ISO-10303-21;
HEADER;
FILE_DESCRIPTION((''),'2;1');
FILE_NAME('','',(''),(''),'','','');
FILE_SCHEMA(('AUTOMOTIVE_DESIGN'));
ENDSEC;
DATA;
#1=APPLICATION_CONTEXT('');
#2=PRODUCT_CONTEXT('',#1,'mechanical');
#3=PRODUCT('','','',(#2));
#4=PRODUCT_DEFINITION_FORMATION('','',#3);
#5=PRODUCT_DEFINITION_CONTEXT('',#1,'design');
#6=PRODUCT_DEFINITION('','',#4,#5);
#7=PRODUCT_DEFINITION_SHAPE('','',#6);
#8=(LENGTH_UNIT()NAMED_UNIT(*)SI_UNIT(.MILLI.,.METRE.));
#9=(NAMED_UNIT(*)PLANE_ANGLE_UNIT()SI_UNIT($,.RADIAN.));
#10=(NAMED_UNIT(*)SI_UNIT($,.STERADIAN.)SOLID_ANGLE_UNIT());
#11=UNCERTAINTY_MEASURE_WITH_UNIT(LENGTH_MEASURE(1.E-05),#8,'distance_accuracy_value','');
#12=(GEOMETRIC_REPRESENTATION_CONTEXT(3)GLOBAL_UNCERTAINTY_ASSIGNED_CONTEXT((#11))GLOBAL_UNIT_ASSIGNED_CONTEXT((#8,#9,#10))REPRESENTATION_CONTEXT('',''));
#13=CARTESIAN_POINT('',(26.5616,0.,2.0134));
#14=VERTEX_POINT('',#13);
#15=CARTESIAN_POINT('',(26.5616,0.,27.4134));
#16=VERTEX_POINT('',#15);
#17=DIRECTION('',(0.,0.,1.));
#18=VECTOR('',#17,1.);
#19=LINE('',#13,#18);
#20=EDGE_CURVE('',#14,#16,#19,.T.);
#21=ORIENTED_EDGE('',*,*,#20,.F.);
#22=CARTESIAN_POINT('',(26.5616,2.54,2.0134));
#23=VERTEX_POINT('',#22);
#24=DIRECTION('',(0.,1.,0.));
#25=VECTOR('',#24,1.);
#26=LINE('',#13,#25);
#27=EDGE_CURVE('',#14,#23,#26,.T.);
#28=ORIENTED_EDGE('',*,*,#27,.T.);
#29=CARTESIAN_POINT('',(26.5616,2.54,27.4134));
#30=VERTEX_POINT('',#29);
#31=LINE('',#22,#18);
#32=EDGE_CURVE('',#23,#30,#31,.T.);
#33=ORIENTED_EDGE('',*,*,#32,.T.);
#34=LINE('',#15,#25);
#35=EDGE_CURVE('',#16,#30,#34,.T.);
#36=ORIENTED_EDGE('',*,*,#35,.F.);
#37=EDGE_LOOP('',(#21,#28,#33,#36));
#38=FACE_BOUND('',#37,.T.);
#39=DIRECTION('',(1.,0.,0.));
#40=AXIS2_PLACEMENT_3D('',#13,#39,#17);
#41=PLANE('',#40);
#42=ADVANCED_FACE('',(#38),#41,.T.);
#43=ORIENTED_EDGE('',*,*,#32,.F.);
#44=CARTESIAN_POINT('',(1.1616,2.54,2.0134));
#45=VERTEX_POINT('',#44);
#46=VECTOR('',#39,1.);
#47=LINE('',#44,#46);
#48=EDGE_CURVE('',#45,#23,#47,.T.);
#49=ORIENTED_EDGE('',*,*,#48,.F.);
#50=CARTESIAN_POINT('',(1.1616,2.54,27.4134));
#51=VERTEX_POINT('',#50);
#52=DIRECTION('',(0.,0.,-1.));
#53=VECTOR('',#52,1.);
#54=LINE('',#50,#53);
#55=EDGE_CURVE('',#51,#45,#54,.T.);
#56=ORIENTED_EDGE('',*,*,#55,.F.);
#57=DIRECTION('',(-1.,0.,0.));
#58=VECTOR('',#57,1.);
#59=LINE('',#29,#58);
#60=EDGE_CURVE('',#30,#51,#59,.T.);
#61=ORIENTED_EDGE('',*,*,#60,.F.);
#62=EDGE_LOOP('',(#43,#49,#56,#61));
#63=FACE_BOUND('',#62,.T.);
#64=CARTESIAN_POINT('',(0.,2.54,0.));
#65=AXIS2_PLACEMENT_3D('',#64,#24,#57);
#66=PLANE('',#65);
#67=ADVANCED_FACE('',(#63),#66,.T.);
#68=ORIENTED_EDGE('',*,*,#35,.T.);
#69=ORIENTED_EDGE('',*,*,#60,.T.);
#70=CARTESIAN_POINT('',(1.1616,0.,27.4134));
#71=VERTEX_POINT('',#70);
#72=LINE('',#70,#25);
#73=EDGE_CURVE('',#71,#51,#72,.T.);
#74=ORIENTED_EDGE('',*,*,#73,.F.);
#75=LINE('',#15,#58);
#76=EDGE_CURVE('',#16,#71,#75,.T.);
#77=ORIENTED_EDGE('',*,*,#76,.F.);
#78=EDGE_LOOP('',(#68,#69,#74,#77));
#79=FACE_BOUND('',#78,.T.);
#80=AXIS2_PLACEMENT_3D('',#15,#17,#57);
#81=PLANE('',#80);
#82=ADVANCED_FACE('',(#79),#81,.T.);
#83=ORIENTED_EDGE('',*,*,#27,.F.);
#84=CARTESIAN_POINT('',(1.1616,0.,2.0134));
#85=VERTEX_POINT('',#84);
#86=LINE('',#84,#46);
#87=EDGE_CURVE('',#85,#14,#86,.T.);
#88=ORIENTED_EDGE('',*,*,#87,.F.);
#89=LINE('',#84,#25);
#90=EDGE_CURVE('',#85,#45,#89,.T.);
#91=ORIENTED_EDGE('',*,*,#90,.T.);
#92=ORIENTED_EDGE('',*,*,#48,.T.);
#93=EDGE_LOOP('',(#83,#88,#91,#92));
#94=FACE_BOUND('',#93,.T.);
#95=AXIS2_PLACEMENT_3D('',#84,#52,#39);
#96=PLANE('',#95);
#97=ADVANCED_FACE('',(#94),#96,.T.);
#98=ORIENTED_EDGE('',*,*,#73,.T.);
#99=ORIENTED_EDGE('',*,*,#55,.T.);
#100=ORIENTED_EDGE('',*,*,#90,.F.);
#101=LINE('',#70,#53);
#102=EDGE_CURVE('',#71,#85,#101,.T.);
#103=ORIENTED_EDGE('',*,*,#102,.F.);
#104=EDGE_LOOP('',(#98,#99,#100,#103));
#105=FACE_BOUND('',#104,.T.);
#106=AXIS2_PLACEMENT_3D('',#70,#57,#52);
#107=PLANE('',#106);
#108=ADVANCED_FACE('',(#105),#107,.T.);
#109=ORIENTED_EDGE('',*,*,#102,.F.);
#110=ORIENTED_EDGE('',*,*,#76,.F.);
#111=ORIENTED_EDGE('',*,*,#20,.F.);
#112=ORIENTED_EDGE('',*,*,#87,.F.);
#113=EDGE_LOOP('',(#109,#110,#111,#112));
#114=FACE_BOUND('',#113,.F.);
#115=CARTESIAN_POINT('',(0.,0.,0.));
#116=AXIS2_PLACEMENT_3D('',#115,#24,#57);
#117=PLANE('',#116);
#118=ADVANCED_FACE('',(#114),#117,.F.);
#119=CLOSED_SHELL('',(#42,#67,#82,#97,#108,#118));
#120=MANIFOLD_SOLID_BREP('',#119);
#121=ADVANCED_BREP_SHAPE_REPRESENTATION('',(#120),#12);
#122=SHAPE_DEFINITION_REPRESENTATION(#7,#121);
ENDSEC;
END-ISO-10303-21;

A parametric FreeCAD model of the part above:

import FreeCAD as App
import Part
import Sketcher

V = App.Vector
Q = App.Units.Quantity

doc = App.newDocument("Part")
params = doc.addObject("Spreadsheet::Sheet", "Params")
for row, (alias, value) in enumerate([
    ("sketch1_width", "1 in"),
    ("pad1_length", "0.1 in"),
], start=1):
    params.set(f"A{row}", alias)
    params.set(f"B{row}", "=" + value)
    params.setAlias(f"B{row}", alias)

body = doc.addObject("PartDesign::Body", "Body")

sketch1 = doc.addObject("Sketcher::SketchObject", "Sketch")
body.addObject(sketch1)
sketch1.AttachmentSupport = (doc.XZ_Plane, [""])
sketch1.MapMode = "FlatFace"
sketch1.addGeometry([
    Part.LineSegment(V(1.1616, 27.4134, 0), V(26.5616, 27.4134, 0)),
    Part.LineSegment(V(26.5616, 27.4134, 0), V(26.5616, 2.0134, 0)),
    Part.LineSegment(V(26.5616, 2.0134, 0), V(1.1616, 2.0134, 0)),
    Part.LineSegment(V(1.1616, 2.0134, 0), V(1.1616, 27.4134, 0)),
], False)
sketch1.addConstraint([
    Sketcher.Constraint("Coincident", 0, 2, 1, 1),
    Sketcher.Constraint("Coincident", 1, 2, 2, 1),
    Sketcher.Constraint("Coincident", 2, 2, 3, 1),
    Sketcher.Constraint("Coincident", 3, 2, 0, 1),
    Sketcher.Constraint("Horizontal", 0),
    Sketcher.Constraint("Vertical", 1),
    Sketcher.Constraint("Horizontal", 2),
    Sketcher.Constraint("Vertical", 3),
    Sketcher.Constraint("Equal", 2, 1),
    Sketcher.Constraint("DistanceX", 0, 1, 0, 2, Q("1 in")),
    Sketcher.Constraint("DistanceX", -1, 1, 0, 2, Q("26.5616 mm")),
    Sketcher.Constraint("DistanceY", -1, 1, 0, 2, Q("27.4134 mm")),
])
sketch1.setExpression("Constraints[9]", "Params.sketch1_width")
pad1 = doc.addObject("PartDesign::Pad", "Pad")
body.addObject(pad1)
pad1.Profile = sketch1
pad1.setExpression("Length", "Params.pad1_length")
pad1.Reversed = True

doc.recompute()
